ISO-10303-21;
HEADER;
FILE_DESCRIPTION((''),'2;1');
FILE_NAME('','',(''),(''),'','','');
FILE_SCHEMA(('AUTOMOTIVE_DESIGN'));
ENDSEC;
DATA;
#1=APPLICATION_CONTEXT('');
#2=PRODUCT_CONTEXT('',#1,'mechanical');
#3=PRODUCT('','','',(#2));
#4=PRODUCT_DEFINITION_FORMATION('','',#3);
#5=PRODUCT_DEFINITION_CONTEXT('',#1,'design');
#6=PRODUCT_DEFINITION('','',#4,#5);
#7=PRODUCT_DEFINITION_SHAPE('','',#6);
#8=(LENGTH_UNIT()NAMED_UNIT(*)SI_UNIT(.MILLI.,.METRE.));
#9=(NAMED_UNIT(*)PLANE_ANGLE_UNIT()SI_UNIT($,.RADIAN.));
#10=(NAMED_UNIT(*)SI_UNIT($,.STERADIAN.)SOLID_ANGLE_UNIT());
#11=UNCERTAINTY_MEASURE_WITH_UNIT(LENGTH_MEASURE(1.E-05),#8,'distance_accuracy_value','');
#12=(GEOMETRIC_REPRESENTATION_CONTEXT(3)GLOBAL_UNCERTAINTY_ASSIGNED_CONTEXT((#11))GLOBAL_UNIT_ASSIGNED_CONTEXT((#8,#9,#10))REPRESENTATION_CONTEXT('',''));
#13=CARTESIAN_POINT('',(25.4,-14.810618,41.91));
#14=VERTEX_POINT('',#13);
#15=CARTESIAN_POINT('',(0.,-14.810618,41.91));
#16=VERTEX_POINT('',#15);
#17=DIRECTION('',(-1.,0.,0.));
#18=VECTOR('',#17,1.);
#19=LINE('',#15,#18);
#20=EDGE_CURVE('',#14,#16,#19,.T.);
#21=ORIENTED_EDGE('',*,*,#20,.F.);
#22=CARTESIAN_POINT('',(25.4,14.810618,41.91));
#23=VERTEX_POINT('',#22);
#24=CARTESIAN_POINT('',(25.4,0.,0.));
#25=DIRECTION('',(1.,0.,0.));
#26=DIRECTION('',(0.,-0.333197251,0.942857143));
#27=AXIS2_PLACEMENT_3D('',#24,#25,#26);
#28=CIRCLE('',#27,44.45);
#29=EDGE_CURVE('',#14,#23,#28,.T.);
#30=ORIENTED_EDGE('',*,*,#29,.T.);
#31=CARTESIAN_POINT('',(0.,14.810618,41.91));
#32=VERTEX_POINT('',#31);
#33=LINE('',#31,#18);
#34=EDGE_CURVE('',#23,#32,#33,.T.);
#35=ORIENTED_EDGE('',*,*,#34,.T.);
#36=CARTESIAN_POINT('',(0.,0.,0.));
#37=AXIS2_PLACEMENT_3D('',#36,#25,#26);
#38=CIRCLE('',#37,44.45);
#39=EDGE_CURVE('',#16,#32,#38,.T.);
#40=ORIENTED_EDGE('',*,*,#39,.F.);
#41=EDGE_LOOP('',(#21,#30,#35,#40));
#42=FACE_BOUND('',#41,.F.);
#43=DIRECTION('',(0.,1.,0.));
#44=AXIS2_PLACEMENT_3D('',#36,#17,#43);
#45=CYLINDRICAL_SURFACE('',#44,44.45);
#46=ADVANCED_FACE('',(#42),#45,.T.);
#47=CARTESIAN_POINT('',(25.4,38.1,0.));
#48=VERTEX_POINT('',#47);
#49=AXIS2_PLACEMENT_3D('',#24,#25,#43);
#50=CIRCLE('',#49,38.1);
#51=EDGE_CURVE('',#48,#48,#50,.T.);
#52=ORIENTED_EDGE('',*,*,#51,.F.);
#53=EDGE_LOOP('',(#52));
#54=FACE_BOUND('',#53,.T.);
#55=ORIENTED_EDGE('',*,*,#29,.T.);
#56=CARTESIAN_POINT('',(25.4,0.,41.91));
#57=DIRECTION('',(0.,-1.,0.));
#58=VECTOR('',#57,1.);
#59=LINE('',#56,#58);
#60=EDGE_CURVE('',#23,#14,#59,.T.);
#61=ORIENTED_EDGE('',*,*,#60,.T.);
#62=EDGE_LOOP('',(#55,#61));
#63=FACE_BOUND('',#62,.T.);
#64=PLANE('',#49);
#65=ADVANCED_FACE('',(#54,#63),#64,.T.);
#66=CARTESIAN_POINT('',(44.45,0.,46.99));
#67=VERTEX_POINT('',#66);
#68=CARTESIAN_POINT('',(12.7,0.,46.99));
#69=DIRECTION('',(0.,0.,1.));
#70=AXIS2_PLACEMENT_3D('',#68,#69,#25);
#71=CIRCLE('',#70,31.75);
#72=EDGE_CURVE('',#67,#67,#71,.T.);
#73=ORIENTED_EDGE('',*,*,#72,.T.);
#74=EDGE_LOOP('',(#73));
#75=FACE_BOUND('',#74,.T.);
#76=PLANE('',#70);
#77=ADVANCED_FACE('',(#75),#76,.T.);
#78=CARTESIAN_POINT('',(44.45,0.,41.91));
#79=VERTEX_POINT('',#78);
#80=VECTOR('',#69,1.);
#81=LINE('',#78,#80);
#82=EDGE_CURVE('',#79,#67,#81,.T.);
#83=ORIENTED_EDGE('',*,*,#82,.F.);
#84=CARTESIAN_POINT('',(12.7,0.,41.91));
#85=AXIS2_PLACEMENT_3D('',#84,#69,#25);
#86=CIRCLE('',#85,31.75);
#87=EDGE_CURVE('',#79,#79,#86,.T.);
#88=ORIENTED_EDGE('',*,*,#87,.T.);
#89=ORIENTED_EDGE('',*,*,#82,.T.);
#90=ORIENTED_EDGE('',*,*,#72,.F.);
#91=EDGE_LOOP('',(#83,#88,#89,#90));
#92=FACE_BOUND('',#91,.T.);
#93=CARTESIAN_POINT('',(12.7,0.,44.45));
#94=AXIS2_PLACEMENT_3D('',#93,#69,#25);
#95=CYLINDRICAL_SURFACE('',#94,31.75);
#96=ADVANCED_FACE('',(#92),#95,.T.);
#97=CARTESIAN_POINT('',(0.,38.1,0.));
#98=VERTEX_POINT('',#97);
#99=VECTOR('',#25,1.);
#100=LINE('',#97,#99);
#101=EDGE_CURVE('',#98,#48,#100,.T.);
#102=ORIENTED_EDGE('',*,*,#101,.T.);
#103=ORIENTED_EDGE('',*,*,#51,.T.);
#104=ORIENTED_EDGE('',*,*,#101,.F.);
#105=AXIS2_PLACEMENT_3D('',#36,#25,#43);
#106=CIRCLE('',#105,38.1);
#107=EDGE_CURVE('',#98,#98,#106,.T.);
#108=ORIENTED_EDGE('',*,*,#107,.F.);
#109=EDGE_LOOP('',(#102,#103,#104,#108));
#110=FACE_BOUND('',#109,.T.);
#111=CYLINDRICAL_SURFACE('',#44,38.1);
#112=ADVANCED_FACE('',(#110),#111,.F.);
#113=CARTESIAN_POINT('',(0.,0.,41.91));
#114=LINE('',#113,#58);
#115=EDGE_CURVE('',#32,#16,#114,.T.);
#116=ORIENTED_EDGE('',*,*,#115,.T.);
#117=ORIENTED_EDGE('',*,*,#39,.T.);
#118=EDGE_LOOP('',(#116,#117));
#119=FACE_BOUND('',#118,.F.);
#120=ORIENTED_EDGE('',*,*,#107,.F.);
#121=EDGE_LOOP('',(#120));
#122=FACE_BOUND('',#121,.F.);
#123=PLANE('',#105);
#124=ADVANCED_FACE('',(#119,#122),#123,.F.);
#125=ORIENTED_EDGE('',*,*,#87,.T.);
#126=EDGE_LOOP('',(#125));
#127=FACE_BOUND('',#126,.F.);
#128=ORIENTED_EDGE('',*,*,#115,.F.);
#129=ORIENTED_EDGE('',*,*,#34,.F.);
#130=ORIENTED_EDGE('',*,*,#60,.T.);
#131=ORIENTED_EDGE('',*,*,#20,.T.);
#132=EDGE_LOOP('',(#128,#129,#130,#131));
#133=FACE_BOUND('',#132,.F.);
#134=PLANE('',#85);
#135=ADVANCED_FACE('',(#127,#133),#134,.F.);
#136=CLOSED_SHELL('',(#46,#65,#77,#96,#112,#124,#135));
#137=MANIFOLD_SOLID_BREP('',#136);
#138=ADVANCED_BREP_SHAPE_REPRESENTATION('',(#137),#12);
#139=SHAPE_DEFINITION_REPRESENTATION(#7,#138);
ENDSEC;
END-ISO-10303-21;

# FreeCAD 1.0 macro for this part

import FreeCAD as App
import Part
import Sketcher
Q = App.Units.Quantity

doc = App.newDocument("Part")
params = doc.addObject("Spreadsheet::Sheet", "Params")
for row, (alias, value) in enumerate([
    ("sketch1_diameter", "3 in"),
    ("sketch1_diameter2", "3.5 in"),
    ("pad1_length", "1 in"),
    ("sketch2_diameter", "2.5 in"),
    ("pad2_length", "0.2 in"),
], start=1):
    params.set(f"A{row}", alias)
    params.set(f"B{row}", "=" + value)
    params.setAlias(f"B{row}", alias)

body = doc.addObject("PartDesign::Body", "Body")

# Sketch on YZ plane
sketch1 = body.newObject("Sketcher::SketchObject", "Sketch")
sketch1.AttachmentSupport = (doc.getObject("YZ_Plane"), [""])
sketch1.MapMode = "FlatFace"
sketch1.addGeometry(Part.Circle(App.Vector(0, 0, 0), App.Vector(0, 0, 1), 44), False)
sketch1.addGeometry(Part.Circle(App.Vector(0, 0, 0), App.Vector(0, 0, 1), 38), False)
sketch1.addConstraint(Sketcher.Constraint("Coincident", 0, 3, -1, 1))
sketch1.addConstraint(Sketcher.Constraint("Coincident", 1, 3, -1, 1))
sketch1.addConstraint(Sketcher.Constraint("Diameter", 1, Q("3 in")))
sketch1.addConstraint(Sketcher.Constraint("Diameter", 0, Q("3.5 in")))
sketch1.setExpression("Constraints[2]", "Params.sketch1_diameter")
sketch1.setExpression("Constraints[3]", "Params.sketch1_diameter2")
pad1 = body.newObject("PartDesign::Pad", "Pad")
pad1.Profile = sketch1
pad1.setExpression("Length", "Params.pad1_length")

# Sketch on XY plane
sketch2 = body.newObject("Sketcher::SketchObject", "Sketch001")
sketch2.AttachmentSupport = (doc.getObject("XY_Plane"), [""])
sketch2.MapMode = "FlatFace"
sketch2.AttachmentOffset = App.Placement(App.Vector(0, 0, 1.75 * 25.4), App.Rotation())
sketch2.addGeometry(Part.Circle(App.Vector(13, 0, 0), App.Vector(0, 0, 1), 32), False)
sketch2.addConstraint(Sketcher.Constraint("PointOnObject", 0, 3, -1))
sketch2.addConstraint(Sketcher.Constraint("Diameter", 0, Q("2.5 in")))
sketch2.addConstraint(Sketcher.Constraint("DistanceX", -1, 1, 0, 3, Q("0.5 in")))
sketch2.setExpression("Constraints[1]", "Params.sketch2_diameter")
pad2 = body.newObject("PartDesign::Pad", "Pad001")
pad2.Profile = sketch2
pad2.setExpression("Length", "Params.pad2_length")
pad2.Midplane = True

doc.recompute()
